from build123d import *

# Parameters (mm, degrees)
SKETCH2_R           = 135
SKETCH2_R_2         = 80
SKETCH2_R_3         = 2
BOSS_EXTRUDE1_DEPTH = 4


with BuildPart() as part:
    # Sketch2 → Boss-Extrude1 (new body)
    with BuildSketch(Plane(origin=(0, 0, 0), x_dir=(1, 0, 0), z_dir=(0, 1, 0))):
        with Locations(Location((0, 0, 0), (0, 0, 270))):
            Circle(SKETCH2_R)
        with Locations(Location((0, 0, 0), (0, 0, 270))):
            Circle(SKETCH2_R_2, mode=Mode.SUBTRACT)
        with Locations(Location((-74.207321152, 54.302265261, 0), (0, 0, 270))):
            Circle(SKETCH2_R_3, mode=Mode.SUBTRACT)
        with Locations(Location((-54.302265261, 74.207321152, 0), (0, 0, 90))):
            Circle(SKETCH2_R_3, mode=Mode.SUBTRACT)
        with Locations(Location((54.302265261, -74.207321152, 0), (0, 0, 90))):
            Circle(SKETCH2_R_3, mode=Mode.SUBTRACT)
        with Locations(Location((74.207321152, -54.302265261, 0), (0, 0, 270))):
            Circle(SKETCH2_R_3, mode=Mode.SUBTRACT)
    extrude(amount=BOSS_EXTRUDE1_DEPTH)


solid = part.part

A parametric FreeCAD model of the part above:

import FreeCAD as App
import Part
import Sketcher
Q = App.Units.Quantity

doc = App.newDocument("Part")
body = doc.addObject("PartDesign::Body", "Body")

# Sketch on XZ plane
sketch1 = body.newObject("Sketcher::SketchObject", "Sketch")
sketch1.AttachmentSupport = (doc.getObject("XZ_Plane"), [""])
sketch1.MapMode = "FlatFace"
sketch1.addGeometry([
    Part.Circle(App.Vector(0, 0, 0), App.Vector(0, 0, 1), 135),  # 0
    Part.Circle(App.Vector(-74.2, -54.3, 0), App.Vector(0, 0, 1), 2),  # 1
    Part.Circle(App.Vector(-54.3, -74.2, 0), App.Vector(0, 0, 1), 2),  # 2
    Part.Circle(App.Vector(0, 0, 0), App.Vector(0, 0, 1), 80),  # 3
    Part.Circle(App.Vector(54.3, 74.2, 0), App.Vector(0, 0, 1), 2),  # 4
    Part.Circle(App.Vector(74.2, 54.3, 0), App.Vector(0, 0, 1), 2),  # 5
], False)
sketch1.addConstraint([
    Sketcher.Constraint("Coincident", 0, 3, -1, 1),
    Sketcher.Constraint("Coincident", 3, 3, -1, 1),
    Sketcher.Constraint("Equal", 1, 2),
    Sketcher.Constraint("Equal", 2, 4),
    Sketcher.Constraint("Equal", 4, 5),
    Sketcher.Constraint("Symmetric", 2, 3, 4, 3, -1, 1),
    Sketcher.Constraint("Symmetric", 1, 3, 5, 3, -1, 1),
    Sketcher.Constraint("Diameter", 0, Q("270 mm")),
    Sketcher.Constraint("Diameter", 1, Q("4 mm")),
    Sketcher.Constraint("Diameter", 3, Q("160 mm")),
    Sketcher.Constraint("DistanceX", 1, 3, -1, 1, Q("74.207321 mm")),
    Sketcher.Constraint("DistanceY", 2, 3, -1, 1, Q("74.207321 mm")),
    Sketcher.Constraint("DistanceX", 2, 3, 4, 3, Q("108.604531 mm")),
    Sketcher.Constraint("DistanceY", 1, 3, 5, 3, Q("108.604531 mm")),
])
pad1 = body.newObject("PartDesign::Pad", "Pad")
pad1.Profile = sketch1
pad1.Length = 4
pad1.Reversed = True

doc.recompute()
